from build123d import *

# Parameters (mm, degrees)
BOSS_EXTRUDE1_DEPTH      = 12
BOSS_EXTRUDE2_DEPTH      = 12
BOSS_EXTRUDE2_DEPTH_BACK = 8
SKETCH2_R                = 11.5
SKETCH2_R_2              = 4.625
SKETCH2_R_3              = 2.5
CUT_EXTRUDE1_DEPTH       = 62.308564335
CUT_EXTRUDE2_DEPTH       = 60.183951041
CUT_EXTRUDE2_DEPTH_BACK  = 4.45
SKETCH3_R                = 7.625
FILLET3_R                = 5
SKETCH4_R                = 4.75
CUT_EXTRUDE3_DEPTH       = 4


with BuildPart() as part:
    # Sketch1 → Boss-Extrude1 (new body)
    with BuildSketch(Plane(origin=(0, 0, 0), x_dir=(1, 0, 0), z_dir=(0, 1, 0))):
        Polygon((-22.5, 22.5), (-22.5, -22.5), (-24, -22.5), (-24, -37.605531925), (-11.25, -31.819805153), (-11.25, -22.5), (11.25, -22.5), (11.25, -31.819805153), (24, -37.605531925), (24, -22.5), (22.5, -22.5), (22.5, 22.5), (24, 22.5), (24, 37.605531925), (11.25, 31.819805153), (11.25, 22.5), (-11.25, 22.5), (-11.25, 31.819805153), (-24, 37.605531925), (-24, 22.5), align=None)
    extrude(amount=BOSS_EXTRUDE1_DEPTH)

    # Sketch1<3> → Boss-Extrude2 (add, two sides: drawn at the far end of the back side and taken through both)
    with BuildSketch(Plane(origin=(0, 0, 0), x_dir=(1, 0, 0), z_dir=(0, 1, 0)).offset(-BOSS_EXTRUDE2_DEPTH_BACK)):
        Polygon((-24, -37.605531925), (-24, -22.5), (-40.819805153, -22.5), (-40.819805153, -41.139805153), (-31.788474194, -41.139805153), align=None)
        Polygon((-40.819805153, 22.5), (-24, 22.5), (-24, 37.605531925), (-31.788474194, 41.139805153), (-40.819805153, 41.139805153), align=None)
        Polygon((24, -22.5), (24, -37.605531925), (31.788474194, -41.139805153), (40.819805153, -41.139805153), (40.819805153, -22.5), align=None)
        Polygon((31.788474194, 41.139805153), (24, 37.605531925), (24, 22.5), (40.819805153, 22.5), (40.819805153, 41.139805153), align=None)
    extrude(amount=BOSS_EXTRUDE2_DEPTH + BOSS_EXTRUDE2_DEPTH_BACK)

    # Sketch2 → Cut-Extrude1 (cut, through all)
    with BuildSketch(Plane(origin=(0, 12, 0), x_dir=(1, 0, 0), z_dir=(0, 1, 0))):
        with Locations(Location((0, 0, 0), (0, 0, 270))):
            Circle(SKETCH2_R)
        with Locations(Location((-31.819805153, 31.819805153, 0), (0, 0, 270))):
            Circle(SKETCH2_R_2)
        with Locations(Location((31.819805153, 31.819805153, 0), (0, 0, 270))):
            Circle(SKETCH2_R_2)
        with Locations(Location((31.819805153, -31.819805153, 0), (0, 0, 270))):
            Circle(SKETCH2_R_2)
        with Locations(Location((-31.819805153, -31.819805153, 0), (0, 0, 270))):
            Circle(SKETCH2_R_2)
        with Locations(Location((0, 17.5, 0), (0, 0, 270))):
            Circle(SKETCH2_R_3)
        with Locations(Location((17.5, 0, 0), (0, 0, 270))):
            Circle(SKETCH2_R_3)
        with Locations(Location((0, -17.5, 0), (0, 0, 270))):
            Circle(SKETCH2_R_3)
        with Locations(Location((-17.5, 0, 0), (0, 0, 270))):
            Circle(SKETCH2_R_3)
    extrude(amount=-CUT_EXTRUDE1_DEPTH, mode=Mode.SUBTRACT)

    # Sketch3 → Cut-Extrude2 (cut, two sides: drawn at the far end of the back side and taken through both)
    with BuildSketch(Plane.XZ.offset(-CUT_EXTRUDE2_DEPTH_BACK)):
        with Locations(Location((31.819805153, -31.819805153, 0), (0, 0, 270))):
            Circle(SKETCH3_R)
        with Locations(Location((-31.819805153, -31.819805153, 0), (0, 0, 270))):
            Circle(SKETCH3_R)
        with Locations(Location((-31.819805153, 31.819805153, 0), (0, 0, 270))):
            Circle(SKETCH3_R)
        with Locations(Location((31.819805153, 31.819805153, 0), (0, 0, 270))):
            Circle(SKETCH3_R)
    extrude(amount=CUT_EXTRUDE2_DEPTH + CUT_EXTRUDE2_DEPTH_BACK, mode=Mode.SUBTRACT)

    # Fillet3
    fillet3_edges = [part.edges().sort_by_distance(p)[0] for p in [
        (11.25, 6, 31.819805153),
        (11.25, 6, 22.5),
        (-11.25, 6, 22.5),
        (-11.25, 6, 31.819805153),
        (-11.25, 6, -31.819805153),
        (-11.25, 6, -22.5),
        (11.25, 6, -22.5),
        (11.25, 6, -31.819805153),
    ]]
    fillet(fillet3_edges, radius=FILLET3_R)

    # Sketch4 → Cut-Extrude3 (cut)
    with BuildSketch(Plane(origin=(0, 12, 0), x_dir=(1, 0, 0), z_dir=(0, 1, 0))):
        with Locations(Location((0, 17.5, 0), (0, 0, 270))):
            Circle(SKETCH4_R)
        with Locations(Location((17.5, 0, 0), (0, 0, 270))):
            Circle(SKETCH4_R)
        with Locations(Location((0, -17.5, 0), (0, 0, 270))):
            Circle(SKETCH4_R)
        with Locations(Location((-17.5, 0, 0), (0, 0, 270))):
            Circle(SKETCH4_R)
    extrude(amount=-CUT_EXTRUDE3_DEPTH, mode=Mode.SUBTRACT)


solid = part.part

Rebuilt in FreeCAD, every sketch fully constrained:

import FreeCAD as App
import Part
import Sketcher


def edges_at(feature, points):
    """Names of the edges that pass closest to the given points."""
    edges = feature.Shape.Edges
    near = lambda p: min(range(len(edges)), key=lambda i: edges[i].distToShape(Part.Vertex(*p))[0])
    return sorted({f"Edge{near(p) + 1}" for p in points})

doc = App.newDocument("Part")
params = doc.addObject("Spreadsheet::Sheet", "Params")
for row, (alias, value) in enumerate([
    ("sketch1_height", "45 mm"),
    ("sketch1_width", "1.5 mm"),
    ("sketch1_width2", "22.5 mm"),
    ("pad1_length", "12 mm"),
    ("pad2_length", "12 mm"),
    ("pad2_length2", "8 mm"),
    ("sketch3_diameter", "23 mm"),
    ("sketch3_diameter2", "5 mm"),
    ("sketch3_diameter3", "9.25 mm"),
    ("sketch4_diameter", "15.25 mm"),
    ("pocket2_length", "60.183951 mm"),
    ("pocket2_length2", "4.45 mm"),
    ("fillet_radius", "5 mm"),
    ("sketch5_diameter", "9.5 mm"),
    ("pocket3_length", "4 mm"),
], start=1):
    params.set(f"A{row}", alias)
    params.set(f"B{row}", "=" + value)
    params.setAlias(f"B{row}", alias)

body = doc.addObject("PartDesign::Body", "Body")

sketch1 = body.newObject("Sketcher::SketchObject", "Sketch")
sketch1.AttachmentSupport = (doc.getObject("XZ_Plane"), [""])
sketch1.MapMode = "FlatFace"
sketch1.addGeometry(Part.LineSegment(App.Vector(-22.5, -22.5, 0), App.Vector(-22.5, 22.5, 0)), False)
sketch1.addGeometry(Part.LineSegment(App.Vector(-22.5, 22.5, 0), App.Vector(-24, 22.5, 0)), False)
sketch1.addGeometry(Part.LineSegment(App.Vector(-24, 22.5, 0), App.Vector(-24, 37.6, 0)), False)
sketch1.addGeometry(Part.LineSegment(App.Vector(-24, 37.6, 0), App.Vector(-11.2, 31.8, 0)), False)
sketch1.addGeometry(Part.LineSegment(App.Vector(-11.2, 31.8, 0), App.Vector(-11.2, 22.5, 0)), False)
sketch1.addGeometry(Part.LineSegment(App.Vector(-11.2, 22.5, 0), App.Vector(11.2, 22.5, 0)), False)
sketch1.addGeometry(Part.LineSegment(App.Vector(11.2, 22.5, 0), App.Vector(11.2, 31.8, 0)), False)
sketch1.addGeometry(Part.LineSegment(App.Vector(11.2, 31.8, 0), App.Vector(24, 37.6, 0)), False)
sketch1.addGeometry(Part.LineSegment(App.Vector(24, 37.6, 0), App.Vector(24, 22.5, 0)), False)
sketch1.addGeometry(Part.LineSegment(App.Vector(24, 22.5, 0), App.Vector(22.5, 22.5, 0)), False)
sketch1.addGeometry(Part.LineSegment(App.Vector(22.5, 22.5, 0), App.Vector(22.5, -22.5, 0)), False)
sketch1.addGeometry(Part.LineSegment(App.Vector(22.5, -22.5, 0), App.Vector(24, -22.5, 0)), False)
sketch1.addGeometry(Part.LineSegment(App.Vector(24, -22.5, 0), App.Vector(24, -37.6, 0)), False)
sketch1.addGeometry(Part.LineSegment(App.Vector(24, -37.6, 0), App.Vector(11.2, -31.8, 0)), False)
sketch1.addGeometry(Part.LineSegment(App.Vector(11.2, -31.8, 0), App.Vector(11.2, -22.5, 0)), False)
sketch1.addGeometry(Part.LineSegment(App.Vector(11.2, -22.5, 0), App.Vector(-11.2, -22.5, 0)), False)
sketch1.addGeometry(Part.LineSegment(App.Vector(-11.2, -22.5, 0), App.Vector(-11.2, -31.8, 0)), False)
sketch1.addGeometry(Part.LineSegment(App.Vector(-11.2, -31.8, 0), App.Vector(-24, -37.6, 0)), False)
sketch1.addGeometry(Part.LineSegment(App.Vector(-24, -37.6, 0), App.Vector(-24, -22.5, 0)), False)
sketch1.addGeometry(Part.LineSegment(App.Vector(-24, -22.5, 0), App.Vector(-22.5, -22.5, 0)), False)
sketch1.addConstraint(Sketcher.Constraint("Coincident", 0, 2, 1, 1))
sketch1.addConstraint(Sketcher.Constraint("Coincident", 1, 2, 2, 1))
sketch1.addConstraint(Sketcher.Constraint("Coincident", 2, 2, 3, 1))
sketch1.addConstraint(Sketcher.Constraint("Coincident", 3, 2, 4, 1))
sketch1.addConstraint(Sketcher.Constraint("Coincident", 4, 2, 5, 1))
sketch1.addConstraint(Sketcher.Constraint("Coincident", 5, 2, 6, 1))
sketch1.addConstraint(Sketcher.Constraint("Coincident", 6, 2, 7, 1))
sketch1.addConstraint(Sketcher.Constraint("Coincident", 7, 2, 8, 1))
sketch1.addConstraint(Sketcher.Constraint("Coincident", 8, 2, 9, 1))
sketch1.addConstraint(Sketcher.Constraint("Coincident", 9, 2, 10, 1))
sketch1.addConstraint(Sketcher.Constraint("Coincident", 10, 2, 11, 1))
sketch1.addConstraint(Sketcher.Constraint("Coincident", 11, 2, 12, 1))
sketch1.addConstraint(Sketcher.Constraint("Coincident", 12, 2, 13, 1))
sketch1.addConstraint(Sketcher.Constraint("Coincident", 13, 2, 14, 1))
sketch1.addConstraint(Sketcher.Constraint("Coincident", 14, 2, 15, 1))
sketch1.addConstraint(Sketcher.Constraint("Coincident", 15, 2, 16, 1))
sketch1.addConstraint(Sketcher.Constraint("Coincident", 16, 2, 17, 1))
sketch1.addConstraint(Sketcher.Constraint("Coincident", 17, 2, 18, 1))
sketch1.addConstraint(Sketcher.Constraint("Coincident", 18, 2, 19, 1))
sketch1.addConstraint(Sketcher.Constraint("Coincident", 19, 2, 0, 1))
sketch1.addConstraint(Sketcher.Constraint("Vertical", 0))
sketch1.addConstraint(Sketcher.Constraint("Horizontal", 1))
sketch1.addConstraint(Sketcher.Constraint("Vertical", 2))
sketch1.addConstraint(Sketcher.Constraint("Vertical", 4))
sketch1.addConstraint(Sketcher.Constraint("Horizontal", 5))
sketch1.addConstraint(Sketcher.Constraint("Vertical", 6))
sketch1.addConstraint(Sketcher.Constraint("Vertical", 8))
sketch1.addConstraint(Sketcher.Constraint("Horizontal", 9))
sketch1.addConstraint(Sketcher.Constraint("Vertical", 10))
sketch1.addConstraint(Sketcher.Constraint("Horizontal", 11))
sketch1.addConstraint(Sketcher.Constraint("Vertical", 12))
sketch1.addConstraint(Sketcher.Constraint("Vertical", 14))
sketch1.addConstraint(Sketcher.Constraint("Horizontal", 15))
sketch1.addConstraint(Sketcher.Constraint("Vertical", 16))
sketch1.addConstraint(Sketcher.Constraint("Vertical", 18))
sketch1.addConstraint(Sketcher.Constraint("Horizontal", 19))
sketch1.addConstraint(Sketcher.Constraint("Symmetric", 0, 2, 10, 2, -1, 1))
sketch1.addConstraint(Sketcher.Constraint("Symmetric", 2, 2, 12, 2, -1, 1))
sketch1.addConstraint(Sketcher.Constraint("Symmetric", 3, 2, 13, 2, -1, 1))
sketch1.addConstraint(Sketcher.Constraint("Symmetric", 5, 2, 15, 2, -1, 1))
sketch1.addConstraint(Sketcher.Constraint("Symmetric", 7, 2, 17, 2, -1, 1))
sketch1.addConstraint(Sketcher.Constraint("Symmetric", 3, 2, 6, 2, -2))
sketch1.addConstraint(Sketcher.Constraint("Symmetric", 2, 2, 7, 2, -2))
sketch1.addConstraint(Sketcher.Constraint("Parallel", 7, 17))
sketch1.addConstraint(Sketcher.Constraint("Horizontal", 1, 2, 4, 2))
sketch1.addConstraint(Sketcher.Constraint("Horizontal", 5, 2, 8, 2))
sketch1.addConstraint(Sketcher.Constraint("Horizontal", 15, 2, 18, 2))
sketch1.addConstraint(Sketcher.Constraint("DistanceY", 0, 1, 0, 2, 45.0))
sketch1.addConstraint(Sketcher.Constraint("DistanceX", 1, 2, 1, 1, 1.5))
sketch1.addConstraint(Sketcher.Constraint("DistanceX", 5, 1, 5, 2, 22.5))
sketch1.addConstraint(Sketcher.Constraint("DistanceX", 1, 2, -1, 1, 24.0))
sketch1.addConstraint(Sketcher.Constraint("DistanceY", 2, 1, 2, 2, 15.105532))
sketch1.addConstraint(Sketcher.Constraint("DistanceY", 4, 2, 4, 1, 9.319805))
sketch1.setExpression("Constraints[47]", "Params.sketch1_height")
sketch1.setExpression("Constraints[48]", "Params.sketch1_width")
sketch1.setExpression("Constraints[49]", "Params.sketch1_width2")
pad1 = body.newObject("PartDesign::Pad", "Pad")
pad1.Profile = sketch1
pad1.setExpression("Length", "Params.pad1_length")
pad1.Reversed = True

sketch2 = body.newObject("Sketcher::SketchObject", "Sketch001")
sketch2.AttachmentSupport = (doc.getObject("XZ_Plane"), [""])
sketch2.MapMode = "FlatFace"
sketch2.addGeometry(Part.LineSegment(App.Vector(-24, 38, 0), App.Vector(-24, 22, 0)), False)
sketch2.addGeometry(Part.LineSegment(App.Vector(-24, 22, 0), App.Vector(-41, 22, 0)), False)
sketch2.addGeometry(Part.LineSegment(App.Vector(-41, 22, 0), App.Vector(-41, 41, 0)), False)
sketch2.addGeometry(Part.LineSegment(App.Vector(-41, 41, 0), App.Vector(-32, 41, 0)), False)
sketch2.addGeometry(Part.LineSegment(App.Vector(-32, 41, 0), App.Vector(-24, 38, 0)), False)
sketch2.addGeometry(Part.LineSegment(App.Vector(-41, -22, 0), App.Vector(-24, -22, 0)), False)
sketch2.addGeometry(Part.LineSegment(App.Vector(-24, -22, 0), App.Vector(-24, -38, 0)), False)
sketch2.addGeometry(Part.LineSegment(App.Vector(-24, -38, 0), App.Vector(-32, -41, 0)), False)
sketch2.addGeometry(Part.LineSegment(App.Vector(-32, -41, 0), App.Vector(-41, -41, 0)), False)
sketch2.addGeometry(Part.LineSegment(App.Vector(-41, -41, 0), App.Vector(-41, -22, 0)), False)
sketch2.addGeometry(Part.LineSegment(App.Vector(24, 22, 0), App.Vector(24, 38, 0)), False)
sketch2.addGeometry(Part.LineSegment(App.Vector(24, 38, 0), App.Vector(32, 41, 0)), False)
sketch2.addGeometry(Part.LineSegment(App.Vector(32, 41, 0), App.Vector(41, 41, 0)), False)
sketch2.addGeometry(Part.LineSegment(App.Vector(41, 41, 0), App.Vector(41, 22, 0)), False)
sketch2.addGeometry(Part.LineSegment(App.Vector(41, 22, 0), App.Vector(24, 22, 0)), False)
sketch2.addGeometry(Part.LineSegment(App.Vector(32, -41, 0), App.Vector(24, -38, 0)), False)
sketch2.addGeometry(Part.LineSegment(App.Vector(24, -38, 0), App.Vector(24, -22, 0)), False)
sketch2.addGeometry(Part.LineSegment(App.Vector(24, -22, 0), App.Vector(41, -22, 0)), False)
sketch2.addGeometry(Part.LineSegment(App.Vector(41, -22, 0), App.Vector(41, -41, 0)), False)
sketch2.addGeometry(Part.LineSegment(App.Vector(41, -41, 0), App.Vector(32, -41, 0)), False)
sketch2.addConstraint(Sketcher.Constraint("Coincident", 0, 2, 1, 1))
sketch2.addConstraint(Sketcher.Constraint("Coincident", 1, 2, 2, 1))
sketch2.addConstraint(Sketcher.Constraint("Coincident", 2, 2, 3, 1))
sketch2.addConstraint(Sketcher.Constraint("Coincident", 3, 2, 4, 1))
sketch2.addConstraint(Sketcher.Constraint("Coincident", 4, 2, 0, 1))
sketch2.addConstraint(Sketcher.Constraint("Coincident", 5, 2, 6, 1))
sketch2.addConstraint(Sketcher.Constraint("Coincident", 6, 2, 7, 1))
sketch2.addConstraint(Sketcher.Constraint("Coincident", 7, 2, 8, 1))
sketch2.addConstraint(Sketcher.Constraint("Coincident", 8, 2, 9, 1))
sketch2.addConstraint(Sketcher.Constraint("Coincident", 9, 2, 5, 1))
sketch2.addConstraint(Sketcher.Constraint("Coincident", 10, 2, 11, 1))
sketch2.addConstraint(Sketcher.Constraint("Coincident", 11, 2, 12, 1))
sketch2.addConstraint(Sketcher.Constraint("Coincident", 12, 2, 13, 1))
sketch2.addConstraint(Sketcher.Constraint("Coincident", 13, 2, 14, 1))
sketch2.addConstraint(Sketcher.Constraint("Coincident", 14, 2, 10, 1))
sketch2.addConstraint(Sketcher.Constraint("Coincident", 15, 2, 16, 1))
sketch2.addConstraint(Sketcher.Constraint("Coincident", 16, 2, 17, 1))
sketch2.addConstraint(Sketcher.Constraint("Coincident", 17, 2, 18, 1))
sketch2.addConstraint(Sketcher.Constraint("Coincident", 18, 2, 19, 1))
sketch2.addConstraint(Sketcher.Constraint("Coincident", 19, 2, 15, 1))
sketch2.addConstraint(Sketcher.Constraint("Vertical", 0))
sketch2.addConstraint(Sketcher.Constraint("Horizontal", 1))
sketch2.addConstraint(Sketcher.Constraint("Vertical", 2))
sketch2.addConstraint(Sketcher.Constraint("Horizontal", 3))
sketch2.addConstraint(Sketcher.Constraint("Horizontal", 5))
sketch2.addConstraint(Sketcher.Constraint("Vertical", 6))
sketch2.addConstraint(Sketcher.Constraint("Horizontal", 8))
sketch2.addConstraint(Sketcher.Constraint("Vertical", 9))
sketch2.addConstraint(Sketcher.Constraint("Vertical", 10))
sketch2.addConstraint(Sketcher.Constraint("Horizontal", 12))
sketch2.addConstraint(Sketcher.Constraint("Vertical", 13))
sketch2.addConstraint(Sketcher.Constraint("Horizontal", 14))
sketch2.addConstraint(Sketcher.Constraint("Vertical", 16))
sketch2.addConstraint(Sketcher.Constraint("Horizontal", 17))
sketch2.addConstraint(Sketcher.Constraint("Vertical", 18))
sketch2.addConstraint(Sketcher.Constraint("Horizontal", 19))
sketch2.addConstraint(Sketcher.Constraint("Symmetric", 6, 2, 10, 2, -1, 1))
sketch2.addConstraint(Sketcher.Constraint("Symmetric", 7, 2, 11, 2, -1, 1))
sketch2.addConstraint(Sketcher.Constraint("Symmetric", 9, 2, 13, 2, -1, 1))
sketch2.addConstraint(Sketcher.Constraint("Symmetric", 4, 2, 15, 2, -1, 1))
sketch2.addConstraint(Sketcher.Constraint("Symmetric", 1, 2, 17, 2, -1, 1))
sketch2.addConstraint(Sketcher.Constraint("Symmetric", 3, 2, 19, 2, -1, 1))
sketch2.addConstraint(Sketcher.Constraint("Symmetric", 4, 2, 10, 2, -2))
sketch2.addConstraint(Sketcher.Constraint("Symmetric", 3, 2, 11, 2, -2))
sketch2.addConstraint(Sketcher.Constraint("Symmetric", 1, 2, 13, 2, -2))
sketch2.addConstraint(Sketcher.Constraint("DistanceX", 0, 2, -1, 1, 24.0))
sketch2.addConstraint(Sketcher.Constraint("DistanceY", 5, 2, 0, 2, 45.0))
sketch2.addConstraint(Sketcher.Constraint("DistanceX", 3, 1, 3, 2, 9.031331))
sketch2.addConstraint(Sketcher.Constraint("DistanceY", 0, 2, 0, 1, 15.105532))
sketch2.addConstraint(Sketcher.Constraint("Distance", 4, 8.55286))
sketch2.addConstraint(Sketcher.Constraint("DistanceX", 1, 2, 1, 1, 16.819805))
pad2 = body.newObject("PartDesign::Pad", "Pad001")
pad2.Profile = sketch2
pad2.Type = "TwoLengths"
pad2.setExpression("Length", "Params.pad2_length")
pad2.setExpression("Length2", "Params.pad2_length2")
pad2.Reversed = True

sketch3 = body.newObject("Sketcher::SketchObject", "Sketch002")
sketch3.AttachmentSupport = (doc.getObject("XZ_Plane"), [""])
sketch3.MapMode = "FlatFace"
sketch3.AttachmentOffset = App.Placement(App.Vector(0, 0, -12), App.Rotation())
sketch3.addGeometry(Part.Circle(App.Vector(0, 0, 0), App.Vector(0, 0, 1), 11.5), False)
sketch3.addGeometry(Part.Circle(App.Vector(-31.8, -31.8, 0), App.Vector(0, 0, 1), 4.6), False)
sketch3.addGeometry(Part.Circle(App.Vector(31.8, -31.8, 0), App.Vector(0, 0, 1), 4.6), False)
sketch3.addGeometry(Part.Circle(App.Vector(31.8, 31.8, 0), App.Vector(0, 0, 1), 4.6), False)
sketch3.addGeometry(Part.Circle(App.Vector(-31.8, 31.8, 0), App.Vector(0, 0, 1), 4.6), False)
sketch3.addGeometry(Part.Circle(App.Vector(0, -17.5, 0), App.Vector(0, 0, 1), 2.5), False)
sketch3.addGeometry(Part.Circle(App.Vector(17.5, 0, 0), App.Vector(0, 0, 1), 2.5), False)
sketch3.addGeometry(Part.Circle(App.Vector(0, 17.5, 0), App.Vector(0, 0, 1), 2.5), False)
sketch3.addGeometry(Part.Circle(App.Vector(-17.5, 0, 0), App.Vector(0, 0, 1), 2.5), False)
sketch3.addConstraint(Sketcher.Constraint("Coincident", 0, 3, -1, 1))
sketch3.addConstraint(Sketcher.Constraint("Equal", 1, 2))
sketch3.addConstraint(Sketcher.Constraint("Equal", 2, 3))
sketch3.addConstraint(Sketcher.Constraint("Equal", 3, 4))
sketch3.addConstraint(Sketcher.Constraint("Equal", 5, 6))
sketch3.addConstraint(Sketcher.Constraint("Equal", 6, 7))
sketch3.addConstraint(Sketcher.Constraint("Equal", 7, 8))
sketch3.addConstraint(Sketcher.Constraint("Symmetric", 1, 3, 3, 3, -1, 1))
sketch3.addConstraint(Sketcher.Constraint("Symmetric", 2, 3, 4, 3, -1, 1))
sketch3.addConstraint(Sketcher.Constraint("Symmetric", 5, 3, 7, 3, -1, 1))
sketch3.addConstraint(Sketcher.Constraint("Symmetric", 6, 3, 8, 3, -1, 1))
sketch3.addConstraint(Sketcher.Constraint("Symmetric", 1, 3, 2, 3, -2))
sketch3.addConstraint(Sketcher.Constraint("PointOnObject", 5, 3, -2))
sketch3.addConstraint(Sketcher.Constraint("PointOnObject", 6, 3, -1))
sketch3.addConstraint(Sketcher.Constraint("Diameter", 0, 23.0))
sketch3.addConstraint(Sketcher.Constraint("Diameter", 5, 5.0))
sketch3.addConstraint(Sketcher.Constraint("Diameter", 1, 9.25))
sketch3.addConstraint(Sketcher.Constraint("DistanceY", 5, 3, 7, 3, 35.0))
sketch3.addConstraint(Sketcher.Constraint("DistanceX", -1, 1, 6, 3, 17.5))
sketch3.addConstraint(Sketcher.Constraint("DistanceX", 1, 3, 2, 3, 63.63961))
sketch3.addConstraint(Sketcher.Constraint("DistanceY", 2, 3, 3, 3, 63.63961))
sketch3.setExpression("Constraints[14]", "Params.sketch3_diameter")
sketch3.setExpression("Constraints[15]", "Params.sketch3_diameter2")
sketch3.setExpression("Constraints[16]", "Params.sketch3_diameter3")
pocket1 = body.newObject("PartDesign::Pocket", "Pocket")
pocket1.Profile = sketch3
pocket1.Type = "ThroughAll"
pocket1.Reversed = True

sketch4 = body.newObject("Sketcher::SketchObject", "Sketch003")
sketch4.AttachmentSupport = (doc.getObject("XZ_Plane"), [""])
sketch4.MapMode = "FlatFace"
sketch4.addGeometry(Part.Circle(App.Vector(32, -32, 0), App.Vector(0, 0, 1), 8), False)
sketch4.addGeometry(Part.Circle(App.Vector(-32, -32, 0), App.Vector(0, 0, 1), 8), False)
sketch4.addGeometry(Part.Circle(App.Vector(-32, 32, 0), App.Vector(0, 0, 1), 8), False)
sketch4.addGeometry(Part.Circle(App.Vector(32, 32, 0), App.Vector(0, 0, 1), 8), False)
sketch4.addConstraint(Sketcher.Constraint("Equal", 0, 1))
sketch4.addConstraint(Sketcher.Constraint("Equal", 1, 2))
sketch4.addConstraint(Sketcher.Constraint("Equal", 2, 3))
sketch4.addConstraint(Sketcher.Constraint("Symmetric", 0, 3, 2, 3, -1, 1))
sketch4.addConstraint(Sketcher.Constraint("Symmetric", 1, 3, 3, 3, -1, 1))
sketch4.addConstraint(Sketcher.Constraint("Symmetric", 0, 3, 1, 3, -2))
sketch4.addConstraint(Sketcher.Constraint("Diameter", 0, 15.25))
sketch4.addConstraint(Sketcher.Constraint("DistanceX", 1, 3, 0, 3, 63.63961))
sketch4.addConstraint(Sketcher.Constraint("DistanceY", 1, 3, 2, 3, 63.63961))
sketch4.setExpression("Constraints[6]", "Params.sketch4_diameter")
pocket2 = body.newObject("PartDesign::Pocket", "Pocket001")
pocket2.Profile = sketch4
pocket2.Type = "TwoLengths"
pocket2.setExpression("Length", "Params.pocket2_length")
pocket2.setExpression("Length2", "Params.pocket2_length2")
pocket2.Reversed = True
doc.recompute()

fillet = body.newObject("PartDesign::Fillet", "Fillet")
fillet.Base = (pocket2, edges_at(pocket2, [
    (11.25, 6, 31.82),
    (11.25, 6, 22.5),
    (-11.25, 6, 22.5),
    (-11.25, 6, 31.82),
    (-11.25, 6, -31.82),
    (-11.25, 6, -22.5),
    (11.25, 6, -22.5),
    (11.25, 6, -31.82),
]))
fillet.setExpression("Radius", "Params.fillet_radius")

sketch5 = body.newObject("Sketcher::SketchObject", "Sketch004")
sketch5.AttachmentSupport = (doc.getObject("XZ_Plane"), [""])
sketch5.MapMode = "FlatFace"
sketch5.AttachmentOffset = App.Placement(App.Vector(0, 0, -12), App.Rotation())
sketch5.addGeometry(Part.Circle(App.Vector(0, -17.5, 0), App.Vector(0, 0, 1), 4.8), False)
sketch5.addGeometry(Part.Circle(App.Vector(17.5, 0, 0), App.Vector(0, 0, 1), 4.8), False)
sketch5.addGeometry(Part.Circle(App.Vector(0, 17.5, 0), App.Vector(0, 0, 1), 4.8), False)
sketch5.addGeometry(Part.Circle(App.Vector(-17.5, 0, 0), App.Vector(0, 0, 1), 4.8), False)
sketch5.addConstraint(Sketcher.Constraint("Equal", 0, 1))
sketch5.addConstraint(Sketcher.Constraint("Equal", 1, 2))
sketch5.addConstraint(Sketcher.Constraint("Equal", 2, 3))
sketch5.addConstraint(Sketcher.Constraint("Symmetric", 0, 3, 2, 3, -1, 1))
sketch5.addConstraint(Sketcher.Constraint("Symmetric", 1, 3, 3, 3, -1, 1))
sketch5.addConstraint(Sketcher.Constraint("PointOnObject", 0, 3, -2))
sketch5.addConstraint(Sketcher.Constraint("PointOnObject", 1, 3, -1))
sketch5.addConstraint(Sketcher.Constraint("Diameter", 0, 9.5))
sketch5.addConstraint(Sketcher.Constraint("DistanceY", 0, 3, 2, 3, 35.0))
sketch5.addConstraint(Sketcher.Constraint("DistanceX", 3, 3, 1, 3, 35.0))
sketch5.setExpression("Constraints[7]", "Params.sketch5_diameter")
pocket3 = body.newObject("PartDesign::Pocket", "Pocket002")
pocket3.Profile = sketch5
pocket3.setExpression("Length", "Params.pocket3_length")
pocket3.Reversed = True

doc.recompute()
